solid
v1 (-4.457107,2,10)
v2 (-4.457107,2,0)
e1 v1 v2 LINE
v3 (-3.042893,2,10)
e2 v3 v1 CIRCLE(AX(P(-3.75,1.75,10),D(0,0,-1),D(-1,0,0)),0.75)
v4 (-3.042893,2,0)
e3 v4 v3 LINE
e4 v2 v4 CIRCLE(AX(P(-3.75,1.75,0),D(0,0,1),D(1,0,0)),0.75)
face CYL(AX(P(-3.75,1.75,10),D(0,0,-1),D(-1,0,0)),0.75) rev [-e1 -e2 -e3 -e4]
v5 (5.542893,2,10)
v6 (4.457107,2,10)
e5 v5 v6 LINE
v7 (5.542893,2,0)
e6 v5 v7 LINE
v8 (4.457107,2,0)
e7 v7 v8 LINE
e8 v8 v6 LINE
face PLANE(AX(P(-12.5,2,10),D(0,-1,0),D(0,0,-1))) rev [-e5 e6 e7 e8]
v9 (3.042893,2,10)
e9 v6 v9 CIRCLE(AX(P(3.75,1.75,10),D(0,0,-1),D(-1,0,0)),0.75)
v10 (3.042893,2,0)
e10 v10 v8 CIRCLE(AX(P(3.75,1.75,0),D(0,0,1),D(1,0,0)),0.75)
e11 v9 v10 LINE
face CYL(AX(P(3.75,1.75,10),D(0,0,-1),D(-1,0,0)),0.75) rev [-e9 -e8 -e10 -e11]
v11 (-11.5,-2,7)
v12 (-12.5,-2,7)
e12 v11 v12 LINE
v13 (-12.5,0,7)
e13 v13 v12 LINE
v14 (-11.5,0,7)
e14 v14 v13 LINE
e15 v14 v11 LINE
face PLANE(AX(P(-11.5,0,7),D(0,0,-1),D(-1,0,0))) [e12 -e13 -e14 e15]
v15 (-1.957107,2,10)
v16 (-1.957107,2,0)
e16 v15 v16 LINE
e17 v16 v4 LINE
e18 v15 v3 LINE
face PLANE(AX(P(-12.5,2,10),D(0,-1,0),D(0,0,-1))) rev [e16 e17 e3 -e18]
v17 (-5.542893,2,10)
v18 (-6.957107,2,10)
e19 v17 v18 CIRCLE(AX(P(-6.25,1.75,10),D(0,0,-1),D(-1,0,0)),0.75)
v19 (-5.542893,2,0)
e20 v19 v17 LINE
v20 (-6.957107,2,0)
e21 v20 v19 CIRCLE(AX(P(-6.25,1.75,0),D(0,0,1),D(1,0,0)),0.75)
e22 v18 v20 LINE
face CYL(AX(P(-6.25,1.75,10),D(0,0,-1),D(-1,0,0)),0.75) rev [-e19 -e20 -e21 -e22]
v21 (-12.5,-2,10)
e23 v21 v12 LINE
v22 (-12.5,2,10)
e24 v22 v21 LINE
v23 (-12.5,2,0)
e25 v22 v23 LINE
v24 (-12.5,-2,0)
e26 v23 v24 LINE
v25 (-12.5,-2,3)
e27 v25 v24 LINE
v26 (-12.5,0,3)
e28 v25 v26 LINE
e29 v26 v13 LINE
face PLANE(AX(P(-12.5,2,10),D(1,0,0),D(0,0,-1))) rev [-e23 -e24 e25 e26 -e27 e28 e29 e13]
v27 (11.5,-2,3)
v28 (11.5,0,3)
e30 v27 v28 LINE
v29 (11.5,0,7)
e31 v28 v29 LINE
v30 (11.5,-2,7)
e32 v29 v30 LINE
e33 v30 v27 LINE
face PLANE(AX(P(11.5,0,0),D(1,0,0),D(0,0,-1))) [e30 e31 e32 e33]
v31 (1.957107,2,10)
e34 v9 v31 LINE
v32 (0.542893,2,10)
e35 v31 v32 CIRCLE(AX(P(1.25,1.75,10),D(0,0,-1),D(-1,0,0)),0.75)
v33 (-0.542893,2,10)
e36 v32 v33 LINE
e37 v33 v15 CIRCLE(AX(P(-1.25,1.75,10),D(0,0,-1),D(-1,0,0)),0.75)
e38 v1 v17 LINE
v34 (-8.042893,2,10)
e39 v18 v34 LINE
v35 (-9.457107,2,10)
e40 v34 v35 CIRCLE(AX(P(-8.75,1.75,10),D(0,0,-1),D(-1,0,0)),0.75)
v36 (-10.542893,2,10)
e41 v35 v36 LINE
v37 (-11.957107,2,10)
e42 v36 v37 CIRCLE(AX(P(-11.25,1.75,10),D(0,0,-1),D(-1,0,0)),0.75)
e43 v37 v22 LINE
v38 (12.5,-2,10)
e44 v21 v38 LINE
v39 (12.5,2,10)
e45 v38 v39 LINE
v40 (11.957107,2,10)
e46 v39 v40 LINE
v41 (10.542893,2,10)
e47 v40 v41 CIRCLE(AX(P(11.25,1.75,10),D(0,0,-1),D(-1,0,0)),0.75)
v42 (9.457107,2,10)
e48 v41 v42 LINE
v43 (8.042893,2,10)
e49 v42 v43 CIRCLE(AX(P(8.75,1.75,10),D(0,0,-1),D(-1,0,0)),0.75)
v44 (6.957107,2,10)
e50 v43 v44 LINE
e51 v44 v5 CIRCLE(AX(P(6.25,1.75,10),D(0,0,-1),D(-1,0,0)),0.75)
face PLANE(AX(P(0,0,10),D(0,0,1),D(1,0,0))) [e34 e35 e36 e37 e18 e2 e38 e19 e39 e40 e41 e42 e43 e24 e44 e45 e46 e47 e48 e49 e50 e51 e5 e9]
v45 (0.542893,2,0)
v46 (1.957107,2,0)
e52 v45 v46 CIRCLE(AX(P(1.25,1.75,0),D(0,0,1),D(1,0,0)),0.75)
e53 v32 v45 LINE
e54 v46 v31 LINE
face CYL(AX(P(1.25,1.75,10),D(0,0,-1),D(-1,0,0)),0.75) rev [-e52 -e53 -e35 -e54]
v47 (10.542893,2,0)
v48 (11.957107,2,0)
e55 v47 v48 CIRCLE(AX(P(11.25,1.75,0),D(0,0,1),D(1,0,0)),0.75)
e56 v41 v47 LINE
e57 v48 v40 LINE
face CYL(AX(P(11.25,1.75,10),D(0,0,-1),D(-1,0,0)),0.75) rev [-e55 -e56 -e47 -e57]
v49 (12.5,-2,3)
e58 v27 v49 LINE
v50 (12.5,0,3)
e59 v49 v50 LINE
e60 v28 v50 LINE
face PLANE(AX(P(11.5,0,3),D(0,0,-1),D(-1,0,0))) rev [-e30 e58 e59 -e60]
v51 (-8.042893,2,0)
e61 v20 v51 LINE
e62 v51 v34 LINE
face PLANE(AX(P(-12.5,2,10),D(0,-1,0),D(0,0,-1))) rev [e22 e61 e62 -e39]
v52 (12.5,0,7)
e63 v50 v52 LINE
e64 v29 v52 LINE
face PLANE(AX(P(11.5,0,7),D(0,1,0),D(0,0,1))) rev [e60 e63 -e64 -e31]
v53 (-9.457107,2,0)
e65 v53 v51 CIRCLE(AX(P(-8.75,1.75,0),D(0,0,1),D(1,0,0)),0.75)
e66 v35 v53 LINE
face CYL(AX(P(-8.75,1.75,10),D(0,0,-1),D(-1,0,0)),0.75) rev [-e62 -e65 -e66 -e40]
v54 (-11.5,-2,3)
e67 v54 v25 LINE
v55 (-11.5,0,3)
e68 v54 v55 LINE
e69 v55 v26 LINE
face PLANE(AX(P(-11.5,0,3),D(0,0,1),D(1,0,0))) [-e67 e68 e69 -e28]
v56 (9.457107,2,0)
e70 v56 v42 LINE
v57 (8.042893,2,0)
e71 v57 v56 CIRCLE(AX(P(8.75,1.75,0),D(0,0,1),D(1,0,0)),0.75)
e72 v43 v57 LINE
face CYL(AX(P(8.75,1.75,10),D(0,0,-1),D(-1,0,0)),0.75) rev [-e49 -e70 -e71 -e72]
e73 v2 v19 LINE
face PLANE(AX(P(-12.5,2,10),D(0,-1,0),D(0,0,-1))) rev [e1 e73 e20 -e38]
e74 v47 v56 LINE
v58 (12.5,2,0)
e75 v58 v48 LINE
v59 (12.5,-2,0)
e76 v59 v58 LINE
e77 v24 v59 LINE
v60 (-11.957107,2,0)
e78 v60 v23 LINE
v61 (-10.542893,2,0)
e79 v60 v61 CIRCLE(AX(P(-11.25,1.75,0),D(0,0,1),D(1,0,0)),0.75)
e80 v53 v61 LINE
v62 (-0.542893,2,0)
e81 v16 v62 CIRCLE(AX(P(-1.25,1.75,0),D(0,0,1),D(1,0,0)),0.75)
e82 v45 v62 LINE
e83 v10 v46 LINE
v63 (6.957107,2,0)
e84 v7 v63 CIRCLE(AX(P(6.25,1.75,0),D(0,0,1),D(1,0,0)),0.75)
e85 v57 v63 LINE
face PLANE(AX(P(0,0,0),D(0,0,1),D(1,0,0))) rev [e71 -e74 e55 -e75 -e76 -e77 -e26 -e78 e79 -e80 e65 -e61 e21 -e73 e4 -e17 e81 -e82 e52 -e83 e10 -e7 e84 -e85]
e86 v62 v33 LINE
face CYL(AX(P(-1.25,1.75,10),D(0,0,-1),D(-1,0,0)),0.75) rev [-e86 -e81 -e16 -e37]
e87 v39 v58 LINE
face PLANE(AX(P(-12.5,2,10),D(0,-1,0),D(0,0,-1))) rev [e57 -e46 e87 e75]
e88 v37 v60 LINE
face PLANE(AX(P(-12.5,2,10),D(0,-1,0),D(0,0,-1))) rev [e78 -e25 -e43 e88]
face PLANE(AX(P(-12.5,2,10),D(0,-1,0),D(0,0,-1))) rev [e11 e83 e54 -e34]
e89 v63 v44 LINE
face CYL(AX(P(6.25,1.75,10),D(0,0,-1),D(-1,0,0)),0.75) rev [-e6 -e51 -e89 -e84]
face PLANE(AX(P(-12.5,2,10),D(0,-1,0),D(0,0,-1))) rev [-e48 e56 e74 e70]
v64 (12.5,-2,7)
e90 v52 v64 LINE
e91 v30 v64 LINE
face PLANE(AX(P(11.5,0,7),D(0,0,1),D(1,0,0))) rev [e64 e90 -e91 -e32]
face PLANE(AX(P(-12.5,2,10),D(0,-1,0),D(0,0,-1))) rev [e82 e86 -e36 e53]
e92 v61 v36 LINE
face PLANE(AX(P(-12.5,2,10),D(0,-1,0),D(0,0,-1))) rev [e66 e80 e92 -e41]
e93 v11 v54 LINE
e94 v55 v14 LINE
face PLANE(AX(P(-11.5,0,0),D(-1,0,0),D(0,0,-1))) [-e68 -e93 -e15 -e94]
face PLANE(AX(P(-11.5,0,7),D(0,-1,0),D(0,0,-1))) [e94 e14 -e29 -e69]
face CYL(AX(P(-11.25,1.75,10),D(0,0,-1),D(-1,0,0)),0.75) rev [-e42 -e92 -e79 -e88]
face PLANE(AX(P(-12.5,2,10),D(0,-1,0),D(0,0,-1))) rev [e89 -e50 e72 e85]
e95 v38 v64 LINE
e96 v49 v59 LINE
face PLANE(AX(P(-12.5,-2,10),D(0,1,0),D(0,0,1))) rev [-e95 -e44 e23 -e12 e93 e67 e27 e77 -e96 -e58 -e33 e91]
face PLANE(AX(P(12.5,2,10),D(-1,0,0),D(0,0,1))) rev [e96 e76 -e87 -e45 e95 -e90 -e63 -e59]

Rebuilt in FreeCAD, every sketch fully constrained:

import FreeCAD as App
import Part
import Sketcher
Q = App.Units.Quantity

doc = App.newDocument("Part")
body = doc.addObject("PartDesign::Body", "Body")

# Sketch on XY plane
sketch1 = body.newObject("Sketcher::SketchObject", "Sketch")
sketch1.AttachmentSupport = (doc.getObject("XY_Plane"), [""])
sketch1.MapMode = "FlatFace"
sketch1.addGeometry([
    Part.LineSegment(App.Vector(-12.5, 2, 0), App.Vector(-12.5, -2, 0)),
    Part.LineSegment(App.Vector(-12.5, -2, 0), App.Vector(12.5, -2, 0)),
    Part.LineSegment(App.Vector(12.5, -2, 0), App.Vector(12.5, 2, 0)),
    Part.LineSegment(App.Vector(12.5, 2, 0), App.Vector(-12.5, 2, 0)),
], False)
sketch1.addConstraint([
    Sketcher.Constraint("Coincident", 0, 2, 1, 1),
    Sketcher.Constraint("Coincident", 1, 2, 2, 1),
    Sketcher.Constraint("Coincident", 2, 2, 3, 1),
    Sketcher.Constraint("Coincident", 3, 2, 0, 1),
    Sketcher.Constraint("Vertical", 0),
    Sketcher.Constraint("Horizontal", 1),
    Sketcher.Constraint("Vertical", 2),
    Sketcher.Constraint("Horizontal", 3),
    Sketcher.Constraint("Symmetric", 0, 2, 2, 2, -1, 1),
    Sketcher.Constraint("DistanceX", 1, 1, 1, 2, Q("25 mm")),
    Sketcher.Constraint("DistanceY", 0, 2, 0, 1, Q("4 mm")),
])
pad1 = body.newObject("PartDesign::Pad", "Pad")
pad1.Profile = sketch1
pad1.Length = 10

# Sketch on XY plane
sketch2 = body.newObject("Sketcher::SketchObject", "Sketch001")
sketch2.AttachmentSupport = (doc.getObject("XY_Plane"), [""])
sketch2.MapMode = "FlatFace"
sketch2.addGeometry([
    Part.Circle(App.Vector(11.2, 1.8, 0), App.Vector(0, 0, 1), 0.8),  # 0
    Part.Circle(App.Vector(8.8, 1.8, 0), App.Vector(0, 0, 1), 0.8),  # 1
    Part.Circle(App.Vector(6.2, 1.8, 0), App.Vector(0, 0, 1), 0.8),  # 2
    Part.Circle(App.Vector(3.8, 1.8, 0), App.Vector(0, 0, 1), 0.8),  # 3
    Part.Circle(App.Vector(1.2, 1.8, 0), App.Vector(0, 0, 1), 0.8),  # 4
    Part.Circle(App.Vector(-1.2, 1.8, 0), App.Vector(0, 0, 1), 0.8),  # 5
    Part.Circle(App.Vector(-3.8, 1.8, 0), App.Vector(0, 0, 1), 0.8),  # 6
    Part.Circle(App.Vector(-6.2, 1.8, 0), App.Vector(0, 0, 1), 0.8),  # 7
    Part.Circle(App.Vector(-8.8, 1.8, 0), App.Vector(0, 0, 1), 0.8),  # 8
    Part.Circle(App.Vector(-11.2, 1.8, 0), App.Vector(0, 0, 1), 0.8),  # 9
], False)
sketch2.addConstraint([
    Sketcher.Constraint("Equal", 0, 1),
    Sketcher.Constraint("Equal", 1, 2),
    Sketcher.Constraint("Equal", 2, 3),
    Sketcher.Constraint("Equal", 3, 4),
    Sketcher.Constraint("Equal", 4, 5),
    Sketcher.Constraint("Equal", 5, 6),
    Sketcher.Constraint("Equal", 6, 7),
    Sketcher.Constraint("Equal", 7, 8),
    Sketcher.Constraint("Equal", 8, 9),
    Sketcher.Constraint("Symmetric", 4, 3, 5, 3, -2),
    Sketcher.Constraint("Symmetric", 3, 3, 6, 3, -2),
    Sketcher.Constraint("Symmetric", 2, 3, 7, 3, -2),
    Sketcher.Constraint("Symmetric", 1, 3, 8, 3, -2),
    Sketcher.Constraint("Symmetric", 0, 3, 9, 3, -2),
    Sketcher.Constraint("Horizontal", 0, 3, 1, 3),
    Sketcher.Constraint("Horizontal", 1, 3, 2, 3),
    Sketcher.Constraint("Horizontal", 2, 3, 3, 3),
    Sketcher.Constraint("Horizontal", 3, 3, 4, 3),
    Sketcher.Constraint("Diameter", 0, Q("1.5 mm")),
    Sketcher.Constraint("DistanceX", 2, 3, 0, 3, Q("5 mm")),
    Sketcher.Constraint("DistanceX", 3, 3, 1, 3, Q("5 mm")),
    Sketcher.Constraint("DistanceX", 4, 3, 2, 3, Q("5 mm")),
    Sketcher.Constraint("DistanceX", 5, 3, 3, 3, Q("5 mm")),
    Sketcher.Constraint("DistanceX", 1, 3, 0, 3, Q("2.5 mm")),
    Sketcher.Constraint("DistanceY", -1, 1, 0, 3, Q("1.75 mm")),
])
pocket1 = body.newObject("PartDesign::Pocket", "Pocket")
pocket1.Profile = sketch2
pocket1.Type = "ThroughAll"
pocket1.Reversed = True

# Sketch on YZ plane
sketch3 = body.newObject("Sketcher::SketchObject", "Sketch002")
sketch3.AttachmentSupport = (doc.getObject("YZ_Plane"), [""])
sketch3.MapMode = "FlatFace"
sketch3.AttachmentOffset = App.Placement(App.Vector(0, 0, 12.5), App.Rotation())
sketch3.addGeometry([
    Part.LineSegment(App.Vector(0, 7, 0), App.Vector(-2, 7, 0)),
    Part.LineSegment(App.Vector(-2, 7, 0), App.Vector(-2, 3, 0)),
    Part.LineSegment(App.Vector(-2, 3, 0), App.Vector(0, 3, 0)),
    Part.LineSegment(App.Vector(0, 3, 0), App.Vector(0, 7, 0)),
], False)
sketch3.addConstraint([
    Sketcher.Constraint("Coincident", 0, 2, 1, 1),
    Sketcher.Constraint("Coincident", 1, 2, 2, 1),
    Sketcher.Constraint("Coincident", 2, 2, 3, 1),
    Sketcher.Constraint("Coincident", 3, 2, 0, 1),
    Sketcher.Constraint("Horizontal", 0),
    Sketcher.Constraint("Vertical", 1),
    Sketcher.Constraint("Horizontal", 2),
    Sketcher.Constraint("Vertical", 3),
    Sketcher.Constraint("PointOnObject", 2, 2, -2),
    Sketcher.Constraint("DistanceX", 0, 2, 0, 1, Q("2 mm")),
    Sketcher.Constraint("DistanceY", 1, 2, 1, 1, Q("4 mm")),
    Sketcher.Constraint("DistanceY", -1, 1, 0, 2, Q("7 mm")),
])
pocket2 = body.newObject("PartDesign::Pocket", "Pocket001")
pocket2.Profile = sketch3
pocket2.Length = 1
doc.recompute()

mirrored = body.newObject("PartDesign::Mirrored", "Mirrored")
mirrored.Originals = [pocket2]
mirrored.MirrorPlane = (doc.getObject("YZ_Plane"), [""])
body.Tip = mirrored

doc.recompute()
